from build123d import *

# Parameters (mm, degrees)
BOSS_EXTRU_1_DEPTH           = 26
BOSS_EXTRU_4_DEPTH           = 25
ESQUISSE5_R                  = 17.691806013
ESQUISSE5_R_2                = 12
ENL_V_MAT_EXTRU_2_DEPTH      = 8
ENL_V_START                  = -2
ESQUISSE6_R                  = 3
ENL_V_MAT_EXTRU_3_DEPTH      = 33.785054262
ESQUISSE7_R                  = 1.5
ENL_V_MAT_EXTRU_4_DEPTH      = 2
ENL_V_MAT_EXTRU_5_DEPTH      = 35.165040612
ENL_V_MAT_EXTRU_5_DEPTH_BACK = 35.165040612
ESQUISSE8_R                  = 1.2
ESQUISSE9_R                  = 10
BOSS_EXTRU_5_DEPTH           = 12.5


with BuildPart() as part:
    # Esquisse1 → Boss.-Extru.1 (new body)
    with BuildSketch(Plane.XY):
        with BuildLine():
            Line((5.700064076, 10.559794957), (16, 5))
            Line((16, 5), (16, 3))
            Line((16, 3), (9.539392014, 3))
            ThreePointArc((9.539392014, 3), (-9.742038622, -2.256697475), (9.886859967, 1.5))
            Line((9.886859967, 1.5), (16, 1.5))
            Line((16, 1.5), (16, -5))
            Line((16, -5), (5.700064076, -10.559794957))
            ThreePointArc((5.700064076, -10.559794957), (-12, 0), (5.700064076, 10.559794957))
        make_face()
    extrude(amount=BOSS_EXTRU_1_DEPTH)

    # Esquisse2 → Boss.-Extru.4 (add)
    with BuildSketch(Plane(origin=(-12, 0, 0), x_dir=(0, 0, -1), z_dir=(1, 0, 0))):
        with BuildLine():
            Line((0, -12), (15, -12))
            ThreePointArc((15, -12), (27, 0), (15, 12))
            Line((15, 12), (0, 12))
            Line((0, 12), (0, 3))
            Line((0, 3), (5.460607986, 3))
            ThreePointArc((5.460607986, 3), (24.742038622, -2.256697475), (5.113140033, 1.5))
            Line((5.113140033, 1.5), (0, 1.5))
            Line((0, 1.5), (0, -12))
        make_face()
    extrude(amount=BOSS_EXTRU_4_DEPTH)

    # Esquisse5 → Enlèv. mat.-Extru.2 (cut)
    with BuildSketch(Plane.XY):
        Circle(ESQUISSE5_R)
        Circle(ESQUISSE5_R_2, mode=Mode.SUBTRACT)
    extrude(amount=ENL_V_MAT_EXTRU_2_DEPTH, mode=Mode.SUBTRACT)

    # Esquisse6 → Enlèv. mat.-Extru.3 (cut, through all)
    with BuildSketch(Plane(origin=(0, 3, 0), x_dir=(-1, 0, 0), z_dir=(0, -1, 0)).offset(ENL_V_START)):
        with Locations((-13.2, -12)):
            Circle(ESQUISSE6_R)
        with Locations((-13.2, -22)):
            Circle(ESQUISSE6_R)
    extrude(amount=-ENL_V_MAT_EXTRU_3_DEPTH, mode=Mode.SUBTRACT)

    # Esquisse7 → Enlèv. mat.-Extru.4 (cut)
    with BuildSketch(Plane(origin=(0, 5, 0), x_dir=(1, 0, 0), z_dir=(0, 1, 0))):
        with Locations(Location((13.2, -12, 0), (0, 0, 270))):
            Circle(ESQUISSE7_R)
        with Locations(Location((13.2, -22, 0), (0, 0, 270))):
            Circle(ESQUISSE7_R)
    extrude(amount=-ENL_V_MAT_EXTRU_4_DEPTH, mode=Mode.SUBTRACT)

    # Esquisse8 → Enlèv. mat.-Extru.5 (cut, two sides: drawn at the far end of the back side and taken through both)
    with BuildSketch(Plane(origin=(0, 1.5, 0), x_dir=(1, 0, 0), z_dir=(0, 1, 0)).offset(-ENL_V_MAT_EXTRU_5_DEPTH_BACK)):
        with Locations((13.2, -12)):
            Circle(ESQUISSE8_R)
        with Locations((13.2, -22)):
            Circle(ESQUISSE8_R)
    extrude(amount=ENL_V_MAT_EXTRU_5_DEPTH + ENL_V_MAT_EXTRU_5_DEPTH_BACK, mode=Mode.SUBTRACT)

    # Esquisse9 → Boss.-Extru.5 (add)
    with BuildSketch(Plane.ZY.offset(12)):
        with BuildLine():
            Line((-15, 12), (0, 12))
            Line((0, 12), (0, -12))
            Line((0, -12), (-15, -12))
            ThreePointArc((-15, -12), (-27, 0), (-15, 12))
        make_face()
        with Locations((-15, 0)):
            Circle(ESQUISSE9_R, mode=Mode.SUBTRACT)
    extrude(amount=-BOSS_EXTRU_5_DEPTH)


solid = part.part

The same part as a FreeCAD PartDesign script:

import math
import FreeCAD as App
import Part
import Sketcher
from FreeCAD import Vector
Q = App.Units.Quantity

doc = App.newDocument("Part")
body = doc.addObject("PartDesign::Body", "Body")

# Sketch on XY plane
sketch1 = body.newObject("Sketcher::SketchObject", "Sketch")
sketch1.AttachmentSupport = (doc.getObject("XY_Plane"), [""])
sketch1.MapMode = "FlatFace"
sketch1.addGeometry(Part.LineSegment(Vector(16, 5, 0), Vector(5.700064, 10.559795, 0)), False)
sketch1.addGeometry(Part.ArcOfCircle(Part.Circle(Vector(0, 0, 0), Vector(0, 0, 1), 12), math.radians(61.640302), math.radians(298.359698)), False)
sketch1.addGeometry(Part.LineSegment(Vector(5.700064, -10.559795, 0), Vector(16, -5, 0)), False)
sketch1.addGeometry(Part.LineSegment(Vector(16, -5, 0), Vector(16, 1.5, 0)), False)
sketch1.addGeometry(Part.LineSegment(Vector(16, 1.5, 0), Vector(9.88686, 1.5, 0)), False)
sketch1.addGeometry(Part.ArcOfCircle(Part.Circle(Vector(0, 0, 0), Vector(0, 0, 1), 10), math.radians(17.457603), math.radians(368.626927)), False)
sketch1.addGeometry(Part.LineSegment(Vector(9.539392, 3, 0), Vector(16, 3, 0)), False)
sketch1.addGeometry(Part.LineSegment(Vector(16, 3, 0), Vector(16, 5, 0)), False)
sketch1.addConstraint(Sketcher.Constraint("Tangent", 0, 2, 1, 1))
sketch1.addConstraint(Sketcher.Constraint("Tangent", 1, 2, 2, 1))
sketch1.addConstraint(Sketcher.Constraint("Coincident", 2, 2, 3, 1))
sketch1.addConstraint(Sketcher.Constraint("Coincident", 3, 2, 4, 1))
sketch1.addConstraint(Sketcher.Constraint("Coincident", 4, 2, 5, 2))
sketch1.addConstraint(Sketcher.Constraint("Coincident", 5, 1, 6, 1))
sketch1.addConstraint(Sketcher.Constraint("Coincident", 6, 2, 7, 1))
sketch1.addConstraint(Sketcher.Constraint("Coincident", 7, 2, 0, 1))
sketch1.addConstraint(Sketcher.Constraint("Vertical", 3))
sketch1.addConstraint(Sketcher.Constraint("Horizontal", 4))
sketch1.addConstraint(Sketcher.Constraint("Horizontal", 6))
sketch1.addConstraint(Sketcher.Constraint("Vertical", 7))
sketch1.addConstraint(Sketcher.Constraint("Coincident", 1, 3, -1, 1))
sketch1.addConstraint(Sketcher.Constraint("Coincident", 5, 3, -1, 1))
sketch1.addConstraint(Sketcher.Constraint("Symmetric", 2, 2, 7, 2, -1))
sketch1.addConstraint(Sketcher.Constraint("Radius", 1, Q("12 mm")))
sketch1.addConstraint(Sketcher.Constraint("Radius", 5, Q("10 mm")))
sketch1.addConstraint(Sketcher.Constraint("DistanceY", 7, 1, 7, 2, Q("2 mm")))
sketch1.addConstraint(Sketcher.Constraint("DistanceY", 3, 1, 3, 2, Q("6.5 mm")))
sketch1.addConstraint(Sketcher.Constraint("DistanceX", -1, 1, 2, 2, Q("16 mm")))
sketch1.addConstraint(Sketcher.Constraint("DistanceY", 2, 2, -1, 1, Q("5 mm")))
pad1 = body.newObject("PartDesign::Pad", "Pad")
pad1.Profile = sketch1
pad1.Length = 26

# Sketch on YZ plane
sketch2 = body.newObject("Sketcher::SketchObject", "Sketch001")
sketch2.AttachmentSupport = (doc.getObject("YZ_Plane"), [""])
sketch2.MapMode = "FlatFace"
sketch2.AttachmentOffset = App.Placement(Vector(0, 0, -12), App.Rotation())
sketch2.addGeometry(Part.LineSegment(Vector(-12, 0, 0), Vector(-12, -15, 0)), False)
sketch2.addGeometry(Part.ArcOfCircle(Part.Circle(Vector(0, -15, 0), Vector(0, 0, 1), 12), math.radians(180), math.radians(360)), False)
sketch2.addGeometry(Part.LineSegment(Vector(12, -15, 0), Vector(12, 0, 0)), False)
sketch2.addGeometry(Part.LineSegment(Vector(12, 0, 0), Vector(3, 0, 0)), False)
sketch2.addGeometry(Part.LineSegment(Vector(3, 0, 0), Vector(3, -5.460608, 0)), False)
sketch2.addGeometry(Part.ArcOfCircle(Part.Circle(Vector(0, -15, 0), Vector(0, 0, 1), 10), math.radians(81.373073), math.radians(432.542397)), False)
sketch2.addGeometry(Part.LineSegment(Vector(1.5, -5.11314, 0), Vector(1.5, 0, 0)), False)
sketch2.addGeometry(Part.LineSegment(Vector(1.5, 0, 0), Vector(-12, 0, 0)), False)
sketch2.addConstraint(Sketcher.Constraint("Tangent", 0, 2, 1, 1))
sketch2.addConstraint(Sketcher.Constraint("Tangent", 1, 2, 2, 1))
sketch2.addConstraint(Sketcher.Constraint("Coincident", 2, 2, 3, 1))
sketch2.addConstraint(Sketcher.Constraint("Coincident", 3, 2, 4, 1))
sketch2.addConstraint(Sketcher.Constraint("Coincident", 4, 2, 5, 2))
sketch2.addConstraint(Sketcher.Constraint("Coincident", 5, 1, 6, 1))
sketch2.addConstraint(Sketcher.Constraint("Coincident", 6, 2, 7, 1))
sketch2.addConstraint(Sketcher.Constraint("Coincident", 7, 2, 0, 1))
sketch2.addConstraint(Sketcher.Constraint("Vertical", 0))
sketch2.addConstraint(Sketcher.Constraint("Vertical", 2))
sketch2.addConstraint(Sketcher.Constraint("Horizontal", 3))
sketch2.addConstraint(Sketcher.Constraint("Vertical", 4))
sketch2.addConstraint(Sketcher.Constraint("Vertical", 6))
sketch2.addConstraint(Sketcher.Constraint("Horizontal", 7))
sketch2.addConstraint(Sketcher.Constraint("Coincident", 5, 3, 1, 3))
sketch2.addConstraint(Sketcher.Constraint("Symmetric", 2, 2, 7, 2, -1, 1))
sketch2.addConstraint(Sketcher.Constraint("PointOnObject", 2, 2, -1))
sketch2.addConstraint(Sketcher.Constraint("Radius", 1, Q("12 mm")))
sketch2.addConstraint(Sketcher.Constraint("Radius", 5, Q("10 mm")))
sketch2.addConstraint(Sketcher.Constraint("DistanceX", 3, 2, 3, 1, Q("9 mm")))
sketch2.addConstraint(Sketcher.Constraint("DistanceY", 0, 2, 0, 1, Q("15 mm")))
sketch2.addConstraint(Sketcher.Constraint("DistanceX", 7, 2, 7, 1, Q("13.5 mm")))
pad2 = body.newObject("PartDesign::Pad", "Pad001")
pad2.Profile = sketch2
pad2.Length = 25

# Sketch on XY plane
sketch3 = body.newObject("Sketcher::SketchObject", "Sketch002")
sketch3.AttachmentSupport = (doc.getObject("XY_Plane"), [""])
sketch3.MapMode = "FlatFace"
sketch3.addGeometry(Part.Circle(Vector(0, 0, 0), Vector(0, 0, 1), 17.691806), False)
sketch3.addGeometry(Part.Circle(Vector(0, 0, 0), Vector(0, 0, 1), 12), False)
sketch3.addConstraint(Sketcher.Constraint("Coincident", 0, 3, -1, 1))
sketch3.addConstraint(Sketcher.Constraint("Coincident", 1, 3, -1, 1))
sketch3.addConstraint(Sketcher.Constraint("Diameter", 1, Q("24 mm")))
sketch3.addConstraint(Sketcher.Constraint("Diameter", 0, Q("35.383612 mm")))
pocket1 = body.newObject("PartDesign::Pocket", "Pocket")
pocket1.Profile = sketch3
pocket1.Length = 8
pocket1.Reversed = True

# Sketch on XZ plane
sketch4 = body.newObject("Sketcher::SketchObject", "Sketch003")
sketch4.AttachmentSupport = (doc.getObject("XZ_Plane"), [""])
sketch4.MapMode = "FlatFace"
sketch4.AttachmentOffset = App.Placement(Vector(0, 0, -5), App.Rotation())
sketch4.addGeometry(Part.Circle(Vector(13.2, 12, 0), Vector(0, 0, 1), 3), False)
sketch4.addGeometry(Part.Circle(Vector(13.2, 22, 0), Vector(0, 0, 1), 3), False)
sketch4.addConstraint(Sketcher.Constraint("Equal", 0, 1))
sketch4.addConstraint(Sketcher.Constraint("Vertical", 0, 3, 1, 3))
sketch4.addConstraint(Sketcher.Constraint("Diameter", 0, Q("6 mm")))
sketch4.addConstraint(Sketcher.Constraint("DistanceY", -1, 1, 0, 3, Q("12 mm")))
sketch4.addConstraint(Sketcher.Constraint("DistanceY", -1, 1, 1, 3, Q("22 mm")))
sketch4.addConstraint(Sketcher.Constraint("DistanceX", -1, 1, 0, 3, Q("13.2 mm")))
pocket2 = body.newObject("PartDesign::Pocket", "Pocket001")
pocket2.Profile = sketch4
pocket2.Type = "ThroughAll"

# Sketch on XZ plane
sketch5 = body.newObject("Sketcher::SketchObject", "Sketch004")
sketch5.AttachmentSupport = (doc.getObject("XZ_Plane"), [""])
sketch5.MapMode = "FlatFace"
sketch5.AttachmentOffset = App.Placement(Vector(0, 0, -5), App.Rotation())
sketch5.addGeometry(Part.Circle(Vector(13.2, 12, 0), Vector(0, 0, 1), 1.5), False)
sketch5.addGeometry(Part.Circle(Vector(13.2, 22, 0), Vector(0, 0, 1), 1.5), False)
sketch5.addConstraint(Sketcher.Constraint("Equal", 0, 1))
sketch5.addConstraint(Sketcher.Constraint("Vertical", 0, 3, 1, 3))
sketch5.addConstraint(Sketcher.Constraint("Diameter", 0, Q("3 mm")))
sketch5.addConstraint(Sketcher.Constraint("DistanceY", -1, 1, 0, 3, Q("12 mm")))
sketch5.addConstraint(Sketcher.Constraint("DistanceY", -1, 1, 1, 3, Q("22 mm")))
sketch5.addConstraint(Sketcher.Constraint("DistanceX", -1, 1, 0, 3, Q("13.2 mm")))
pocket3 = body.newObject("PartDesign::Pocket", "Pocket002")
pocket3.Profile = sketch5
pocket3.Length = 2
pocket3.Reversed = True

# Sketch on XZ plane
sketch6 = body.newObject("Sketcher::SketchObject", "Sketch005")
sketch6.AttachmentSupport = (doc.getObject("XZ_Plane"), [""])
sketch6.MapMode = "FlatFace"
sketch6.AttachmentOffset = App.Placement(Vector(0, 0, -1.5), App.Rotation())
sketch6.addGeometry(Part.Circle(Vector(13.2, 12, 0), Vector(0, 0, 1), 1.2), False)
sketch6.addGeometry(Part.Circle(Vector(13.2, 22, 0), Vector(0, 0, 1), 1.2), False)
sketch6.addConstraint(Sketcher.Constraint("Equal", 0, 1))
sketch6.addConstraint(Sketcher.Constraint("Vertical", 0, 3, 1, 3))
sketch6.addConstraint(Sketcher.Constraint("Diameter", 0, Q("2.4 mm")))
sketch6.addConstraint(Sketcher.Constraint("DistanceY", -1, 1, 0, 3, Q("12 mm")))
sketch6.addConstraint(Sketcher.Constraint("DistanceY", -1, 1, 1, 3, Q("22 mm")))
sketch6.addConstraint(Sketcher.Constraint("DistanceX", -1, 1, 0, 3, Q("13.2 mm")))
pocket4 = body.newObject("PartDesign::Pocket", "Pocket003")
pocket4.Profile = sketch6
pocket4.Type = "ThroughAll"
pocket4.Midplane = True

# Sketch on YZ plane
sketch7 = body.newObject("Sketcher::SketchObject", "Sketch006")
sketch7.AttachmentSupport = (doc.getObject("YZ_Plane"), [""])
sketch7.MapMode = "FlatFace"
sketch7.AttachmentOffset = App.Placement(Vector(0, 0, -12), App.Rotation())
sketch7.addGeometry(Part.LineSegment(Vector(12, 0, 0), Vector(12, -15, 0)), False)
sketch7.addGeometry(Part.ArcOfCircle(Part.Circle(Vector(0, -15, 0), Vector(0, 0, 1), 12), math.radians(180), math.radians(360)), False)
sketch7.addGeometry(Part.LineSegment(Vector(-12, -15, 0), Vector(-12, 0, 0)), False)
sketch7.addGeometry(Part.LineSegment(Vector(-12, 0, 0), Vector(12, 0, 0)), False)
sketch7.addGeometry(Part.Circle(Vector(0, -15, 0), Vector(0, 0, 1), 10), False)
sketch7.addConstraint(Sketcher.Constraint("Tangent", 0, 2, 1, 2))
sketch7.addConstraint(Sketcher.Constraint("Tangent", 1, 1, 2, 1))
sketch7.addConstraint(Sketcher.Constraint("Coincident", 2, 2, 3, 1))
sketch7.addConstraint(Sketcher.Constraint("Coincident", 3, 2, 0, 1))
sketch7.addConstraint(Sketcher.Constraint("Vertical", 0))
sketch7.addConstraint(Sketcher.Constraint("Vertical", 2))
sketch7.addConstraint(Sketcher.Constraint("Horizontal", 3))
sketch7.addConstraint(Sketcher.Constraint("Coincident", 4, 3, 1, 3))
sketch7.addConstraint(Sketcher.Constraint("Symmetric", 2, 2, 3, 2, -1, 1))
sketch7.addConstraint(Sketcher.Constraint("Diameter", 4, Q("20 mm")))
sketch7.addConstraint(Sketcher.Constraint("Radius", 1, Q("12 mm")))
sketch7.addConstraint(Sketcher.Constraint("DistanceY", 0, 2, 0, 1, Q("15 mm")))
pad3 = body.newObject("PartDesign::Pad", "Pad002")
pad3.Profile = sketch7
pad3.Length = 12.5

doc.recompute()
